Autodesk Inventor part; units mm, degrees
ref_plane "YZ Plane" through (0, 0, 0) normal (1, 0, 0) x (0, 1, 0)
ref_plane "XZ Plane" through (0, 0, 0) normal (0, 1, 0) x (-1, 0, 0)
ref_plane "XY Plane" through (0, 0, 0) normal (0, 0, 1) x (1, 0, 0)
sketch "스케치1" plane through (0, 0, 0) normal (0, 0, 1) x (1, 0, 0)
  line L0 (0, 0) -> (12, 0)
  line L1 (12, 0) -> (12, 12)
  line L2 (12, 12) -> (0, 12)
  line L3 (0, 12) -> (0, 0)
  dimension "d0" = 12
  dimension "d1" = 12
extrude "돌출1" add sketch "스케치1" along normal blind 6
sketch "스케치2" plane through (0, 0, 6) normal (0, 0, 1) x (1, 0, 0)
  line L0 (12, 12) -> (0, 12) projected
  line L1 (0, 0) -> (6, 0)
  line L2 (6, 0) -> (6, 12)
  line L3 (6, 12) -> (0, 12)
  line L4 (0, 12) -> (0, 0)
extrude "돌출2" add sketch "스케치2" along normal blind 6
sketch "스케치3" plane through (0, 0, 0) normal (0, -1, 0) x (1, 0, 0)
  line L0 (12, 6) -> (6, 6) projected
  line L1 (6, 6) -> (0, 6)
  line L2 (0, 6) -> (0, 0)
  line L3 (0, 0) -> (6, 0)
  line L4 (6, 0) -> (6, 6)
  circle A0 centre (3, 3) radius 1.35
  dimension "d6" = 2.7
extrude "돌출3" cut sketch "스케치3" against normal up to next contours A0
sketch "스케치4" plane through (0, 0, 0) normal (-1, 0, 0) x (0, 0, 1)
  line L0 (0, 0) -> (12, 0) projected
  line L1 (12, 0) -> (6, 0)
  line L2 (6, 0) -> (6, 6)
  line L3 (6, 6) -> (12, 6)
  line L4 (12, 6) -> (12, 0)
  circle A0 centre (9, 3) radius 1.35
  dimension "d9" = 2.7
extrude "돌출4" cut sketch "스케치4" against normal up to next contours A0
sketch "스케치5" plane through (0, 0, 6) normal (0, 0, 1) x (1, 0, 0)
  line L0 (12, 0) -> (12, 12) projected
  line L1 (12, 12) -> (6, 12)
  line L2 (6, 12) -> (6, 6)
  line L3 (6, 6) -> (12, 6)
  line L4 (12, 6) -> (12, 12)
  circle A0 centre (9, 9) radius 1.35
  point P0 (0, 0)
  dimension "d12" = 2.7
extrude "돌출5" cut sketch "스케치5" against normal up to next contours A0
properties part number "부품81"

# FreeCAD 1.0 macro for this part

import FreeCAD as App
import Part
import Sketcher
from FreeCAD import Vector
Q = App.Units.Quantity


def add_polygon(sketch, points):
    """Adds a closed chain of lines whose ends are joined by coincident constraints."""
    first, n = sketch.GeometryCount, len(points)
    for a, b in zip(points, points[1:] + points[:1]):
        sketch.addGeometry(Part.LineSegment(App.Vector(*a, 0), App.Vector(*b, 0)), False)
    for i in range(n):
        sketch.addConstraint(Sketcher.Constraint("Coincident", first + i, 2, first + (i + 1) % n, 1))

doc = App.newDocument("Part")
body = doc.addObject("PartDesign::Body", "Body")

# Sketch on XY plane
sketch1 = doc.addObject("Sketcher::SketchObject", "Sketch")
body.addObject(sketch1)
sketch1.AttachmentSupport = (doc.XY_Plane, [""])
sketch1.MapMode = "FlatFace"
add_polygon(sketch1, [(0, 12), (0, 0), (12, 0), (12, 12)])  # lines 0-3
sketch1.addConstraint(Sketcher.Constraint("Vertical", 0))
sketch1.addConstraint(Sketcher.Constraint("Horizontal", 1))
sketch1.addConstraint(Sketcher.Constraint("Vertical", 2))
sketch1.addConstraint(Sketcher.Constraint("Horizontal", 3))
sketch1.addConstraint(Sketcher.Constraint("Coincident", 0, 2, -1, 1))
sketch1.addConstraint(Sketcher.Constraint("Equal", 3, 0))
sketch1.addConstraint(Sketcher.Constraint("DistanceX", 1, 1, 1, 2, Q("12 mm")))
pad1 = doc.addObject("PartDesign::Pad", "Pad")
body.addObject(pad1)
pad1.Profile = sketch1
pad1.Length = 6

# Sketch on XY plane
sketch2 = doc.addObject("Sketcher::SketchObject", "Sketch001")
body.addObject(sketch2)
sketch2.AttachmentSupport = (doc.XY_Plane, [""])
sketch2.MapMode = "FlatFace"
sketch2.AttachmentOffset = App.Placement(Vector(0, 0, 6), App.Rotation())
add_polygon(sketch2, [(6, 0), (6, 12), (0, 12), (0, 0)])  # lines 0-3
sketch2.addConstraint(Sketcher.Constraint("Vertical", 0))
sketch2.addConstraint(Sketcher.Constraint("Horizontal", 1))
sketch2.addConstraint(Sketcher.Constraint("Vertical", 2))
sketch2.addConstraint(Sketcher.Constraint("Horizontal", 3))
sketch2.addConstraint(Sketcher.Constraint("Coincident", 2, 2, -1, 1))
sketch2.addConstraint(Sketcher.Constraint("DistanceX", 1, 2, 1, 1, Q("6 mm")))
sketch2.addConstraint(Sketcher.Constraint("DistanceY", 0, 1, 0, 2, Q("12 mm")))
pad2 = doc.addObject("PartDesign::Pad", "Pad001")
body.addObject(pad2)
pad2.Profile = sketch2
pad2.Length = 6

# Sketch on XZ plane
sketch3 = doc.addObject("Sketcher::SketchObject", "Sketch002")
body.addObject(sketch3)
sketch3.AttachmentSupport = (doc.XZ_Plane, [""])
sketch3.MapMode = "FlatFace"
sketch3.addGeometry(Part.Circle(Vector(3, 3, 0), Vector(0, 0, 1), 1.35), False)
sketch3.addConstraint(Sketcher.Constraint("Diameter", 0, Q("2.7 mm")))
sketch3.addConstraint(Sketcher.Constraint("DistanceX", -1, 1, 0, 3, Q("3 mm")))
sketch3.addConstraint(Sketcher.Constraint("DistanceY", -1, 1, 0, 3, Q("3 mm")))
pocket1 = doc.addObject("PartDesign::Pocket", "Pocket")
body.addObject(pocket1)
pocket1.Profile = sketch3
pocket1.Type = "UpToFirst"

# Sketch on YZ plane
sketch4 = doc.addObject("Sketcher::SketchObject", "Sketch003")
body.addObject(sketch4)
sketch4.AttachmentSupport = (doc.YZ_Plane, [""])
sketch4.MapMode = "FlatFace"
sketch4.addGeometry(Part.Circle(Vector(3, 9, 0), Vector(0, 0, 1), 1.35), False)
sketch4.addConstraint(Sketcher.Constraint("Diameter", 0, Q("2.7 mm")))
sketch4.addConstraint(Sketcher.Constraint("DistanceX", -1, 1, 0, 3, Q("3 mm")))
sketch4.addConstraint(Sketcher.Constraint("DistanceY", -1, 1, 0, 3, Q("9 mm")))
pocket2 = doc.addObject("PartDesign::Pocket", "Pocket001")
body.addObject(pocket2)
pocket2.Profile = sketch4
pocket2.Type = "UpToFirst"
pocket2.Reversed = True

# Sketch on XY plane
sketch5 = doc.addObject("Sketcher::SketchObject", "Sketch004")
body.addObject(sketch5)
sketch5.AttachmentSupport = (doc.XY_Plane, [""])
sketch5.MapMode = "FlatFace"
sketch5.AttachmentOffset = App.Placement(Vector(0, 0, 6), App.Rotation())
sketch5.addGeometry(Part.Circle(Vector(9, 9, 0), Vector(0, 0, 1), 1.35), False)
sketch5.addConstraint(Sketcher.Constraint("Diameter", 0, Q("2.7 mm")))
sketch5.addConstraint(Sketcher.Constraint("DistanceX", -1, 1, 0, 3, Q("9 mm")))
sketch5.addConstraint(Sketcher.Constraint("DistanceY", -1, 1, 0, 3, Q("9 mm")))
pocket3 = doc.addObject("PartDesign::Pocket", "Pocket002")
body.addObject(pocket3)
pocket3.Profile = sketch5
pocket3.Type = "UpToFirst"

doc.recompute()
